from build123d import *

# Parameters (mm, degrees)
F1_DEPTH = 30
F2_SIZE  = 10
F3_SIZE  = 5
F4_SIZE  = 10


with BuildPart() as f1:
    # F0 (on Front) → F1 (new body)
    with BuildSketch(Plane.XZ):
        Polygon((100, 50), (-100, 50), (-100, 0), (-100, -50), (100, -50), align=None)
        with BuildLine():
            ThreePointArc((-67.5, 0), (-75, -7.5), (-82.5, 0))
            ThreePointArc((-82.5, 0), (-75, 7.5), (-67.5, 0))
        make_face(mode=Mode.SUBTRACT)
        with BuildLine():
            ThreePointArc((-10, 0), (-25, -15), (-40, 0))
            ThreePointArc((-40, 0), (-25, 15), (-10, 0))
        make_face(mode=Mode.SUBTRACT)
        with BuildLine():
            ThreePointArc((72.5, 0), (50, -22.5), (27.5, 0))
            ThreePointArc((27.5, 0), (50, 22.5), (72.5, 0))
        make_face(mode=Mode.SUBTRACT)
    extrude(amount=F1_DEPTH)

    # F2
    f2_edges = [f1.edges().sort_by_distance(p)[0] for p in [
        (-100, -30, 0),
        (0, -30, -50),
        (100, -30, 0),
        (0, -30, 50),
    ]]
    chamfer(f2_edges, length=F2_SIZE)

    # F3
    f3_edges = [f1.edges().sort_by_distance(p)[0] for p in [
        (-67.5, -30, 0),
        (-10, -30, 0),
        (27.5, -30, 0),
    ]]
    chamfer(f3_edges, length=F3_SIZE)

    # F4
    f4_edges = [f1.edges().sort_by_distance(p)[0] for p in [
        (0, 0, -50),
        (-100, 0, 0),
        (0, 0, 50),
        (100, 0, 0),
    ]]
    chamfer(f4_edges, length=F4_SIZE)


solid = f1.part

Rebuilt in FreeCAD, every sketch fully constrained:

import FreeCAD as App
import Part
import Sketcher

V = App.Vector
Q = App.Units.Quantity


def edges_at(feature, points):
    """Names of the edges that pass closest to the given points."""
    edges = feature.Shape.Edges
    near = lambda p: min(range(len(edges)), key=lambda i: edges[i].distToShape(Part.Vertex(*p))[0])
    return sorted({f"Edge{near(p) + 1}" for p in points})

doc = App.newDocument("Part")
body = doc.addObject("PartDesign::Body", "Body")

sketch1 = body.newObject("Sketcher::SketchObject", "Sketch")
sketch1.AttachmentSupport = (doc.getObject("XZ_Plane"), [""])
sketch1.MapMode = "FlatFace"
sketch1.addGeometry(Part.LineSegment(V(100, 50, 0), V(-100, 50, 0)), False)
sketch1.addGeometry(Part.LineSegment(V(-100, 50, 0), V(-100, -50, 0)), False)
sketch1.addGeometry(Part.LineSegment(V(-100, -50, 0), V(100, -50, 0)), False)
sketch1.addGeometry(Part.LineSegment(V(100, -50, 0), V(100, 50, 0)), False)
sketch1.addGeometry(Part.Circle(V(-75, 0, 0), V(0, 0, 1), 8), False)
sketch1.addGeometry(Part.Circle(V(-25, 0, 0), V(0, 0, 1), 15), False)
sketch1.addGeometry(Part.Circle(V(50, 0, 0), V(0, 0, 1), 22), False)
sketch1.addConstraint(Sketcher.Constraint("Coincident", 0, 2, 1, 1))
sketch1.addConstraint(Sketcher.Constraint("Coincident", 1, 2, 2, 1))
sketch1.addConstraint(Sketcher.Constraint("Coincident", 2, 2, 3, 1))
sketch1.addConstraint(Sketcher.Constraint("Coincident", 3, 2, 0, 1))
sketch1.addConstraint(Sketcher.Constraint("Horizontal", 0))
sketch1.addConstraint(Sketcher.Constraint("Vertical", 1))
sketch1.addConstraint(Sketcher.Constraint("Horizontal", 2))
sketch1.addConstraint(Sketcher.Constraint("Vertical", 3))
sketch1.addConstraint(Sketcher.Constraint("Symmetric", 0, 2, 2, 2, -1, 1))
sketch1.addConstraint(Sketcher.Constraint("PointOnObject", 4, 3, -1))
sketch1.addConstraint(Sketcher.Constraint("PointOnObject", 5, 3, -1))
sketch1.addConstraint(Sketcher.Constraint("PointOnObject", 6, 3, -1))
sketch1.addConstraint(Sketcher.Constraint("Diameter", 4, Q("15 mm")))
sketch1.addConstraint(Sketcher.Constraint("Diameter", 5, Q("30 mm")))
sketch1.addConstraint(Sketcher.Constraint("Diameter", 6, Q("45 mm")))
sketch1.addConstraint(Sketcher.Constraint("DistanceX", 0, 2, 0, 1, Q("200 mm")))
sketch1.addConstraint(Sketcher.Constraint("DistanceY", 1, 2, 1, 1, Q("100 mm")))
sketch1.addConstraint(Sketcher.Constraint("DistanceX", 4, 3, -1, 1, Q("75 mm")))
sketch1.addConstraint(Sketcher.Constraint("DistanceX", 5, 3, -1, 1, Q("25 mm")))
sketch1.addConstraint(Sketcher.Constraint("DistanceX", -1, 1, 6, 3, Q("50 mm")))
pad1 = body.newObject("PartDesign::Pad", "Pad")
pad1.Profile = sketch1
pad1.Length = 30
doc.recompute()

chamfer = body.newObject("PartDesign::Chamfer", "Chamfer")
chamfer.Base = (pad1, edges_at(pad1, [
    (-100, -30, 0),
    (0, -30, -50),
    (100, -30, 0),
    (0, -30, 50),
]))
chamfer.Size = 10
doc.recompute()

chamfer2 = body.newObject("PartDesign::Chamfer", "Chamfer001")
chamfer2.Base = (chamfer, edges_at(chamfer, [(-67.5, -30, 0), (-10, -30, 0), (72.5, -30, 0)]))
chamfer2.Size = 5
doc.recompute()

chamfer3 = body.newObject("PartDesign::Chamfer", "Chamfer002")
chamfer3.Base = (chamfer2, edges_at(chamfer2, [
    (0, 0, -50),
    (-100, 0, 0),
    (0, 0, 50),
    (100, 0, 0),
]))
chamfer3.Size = 10

doc.recompute()
